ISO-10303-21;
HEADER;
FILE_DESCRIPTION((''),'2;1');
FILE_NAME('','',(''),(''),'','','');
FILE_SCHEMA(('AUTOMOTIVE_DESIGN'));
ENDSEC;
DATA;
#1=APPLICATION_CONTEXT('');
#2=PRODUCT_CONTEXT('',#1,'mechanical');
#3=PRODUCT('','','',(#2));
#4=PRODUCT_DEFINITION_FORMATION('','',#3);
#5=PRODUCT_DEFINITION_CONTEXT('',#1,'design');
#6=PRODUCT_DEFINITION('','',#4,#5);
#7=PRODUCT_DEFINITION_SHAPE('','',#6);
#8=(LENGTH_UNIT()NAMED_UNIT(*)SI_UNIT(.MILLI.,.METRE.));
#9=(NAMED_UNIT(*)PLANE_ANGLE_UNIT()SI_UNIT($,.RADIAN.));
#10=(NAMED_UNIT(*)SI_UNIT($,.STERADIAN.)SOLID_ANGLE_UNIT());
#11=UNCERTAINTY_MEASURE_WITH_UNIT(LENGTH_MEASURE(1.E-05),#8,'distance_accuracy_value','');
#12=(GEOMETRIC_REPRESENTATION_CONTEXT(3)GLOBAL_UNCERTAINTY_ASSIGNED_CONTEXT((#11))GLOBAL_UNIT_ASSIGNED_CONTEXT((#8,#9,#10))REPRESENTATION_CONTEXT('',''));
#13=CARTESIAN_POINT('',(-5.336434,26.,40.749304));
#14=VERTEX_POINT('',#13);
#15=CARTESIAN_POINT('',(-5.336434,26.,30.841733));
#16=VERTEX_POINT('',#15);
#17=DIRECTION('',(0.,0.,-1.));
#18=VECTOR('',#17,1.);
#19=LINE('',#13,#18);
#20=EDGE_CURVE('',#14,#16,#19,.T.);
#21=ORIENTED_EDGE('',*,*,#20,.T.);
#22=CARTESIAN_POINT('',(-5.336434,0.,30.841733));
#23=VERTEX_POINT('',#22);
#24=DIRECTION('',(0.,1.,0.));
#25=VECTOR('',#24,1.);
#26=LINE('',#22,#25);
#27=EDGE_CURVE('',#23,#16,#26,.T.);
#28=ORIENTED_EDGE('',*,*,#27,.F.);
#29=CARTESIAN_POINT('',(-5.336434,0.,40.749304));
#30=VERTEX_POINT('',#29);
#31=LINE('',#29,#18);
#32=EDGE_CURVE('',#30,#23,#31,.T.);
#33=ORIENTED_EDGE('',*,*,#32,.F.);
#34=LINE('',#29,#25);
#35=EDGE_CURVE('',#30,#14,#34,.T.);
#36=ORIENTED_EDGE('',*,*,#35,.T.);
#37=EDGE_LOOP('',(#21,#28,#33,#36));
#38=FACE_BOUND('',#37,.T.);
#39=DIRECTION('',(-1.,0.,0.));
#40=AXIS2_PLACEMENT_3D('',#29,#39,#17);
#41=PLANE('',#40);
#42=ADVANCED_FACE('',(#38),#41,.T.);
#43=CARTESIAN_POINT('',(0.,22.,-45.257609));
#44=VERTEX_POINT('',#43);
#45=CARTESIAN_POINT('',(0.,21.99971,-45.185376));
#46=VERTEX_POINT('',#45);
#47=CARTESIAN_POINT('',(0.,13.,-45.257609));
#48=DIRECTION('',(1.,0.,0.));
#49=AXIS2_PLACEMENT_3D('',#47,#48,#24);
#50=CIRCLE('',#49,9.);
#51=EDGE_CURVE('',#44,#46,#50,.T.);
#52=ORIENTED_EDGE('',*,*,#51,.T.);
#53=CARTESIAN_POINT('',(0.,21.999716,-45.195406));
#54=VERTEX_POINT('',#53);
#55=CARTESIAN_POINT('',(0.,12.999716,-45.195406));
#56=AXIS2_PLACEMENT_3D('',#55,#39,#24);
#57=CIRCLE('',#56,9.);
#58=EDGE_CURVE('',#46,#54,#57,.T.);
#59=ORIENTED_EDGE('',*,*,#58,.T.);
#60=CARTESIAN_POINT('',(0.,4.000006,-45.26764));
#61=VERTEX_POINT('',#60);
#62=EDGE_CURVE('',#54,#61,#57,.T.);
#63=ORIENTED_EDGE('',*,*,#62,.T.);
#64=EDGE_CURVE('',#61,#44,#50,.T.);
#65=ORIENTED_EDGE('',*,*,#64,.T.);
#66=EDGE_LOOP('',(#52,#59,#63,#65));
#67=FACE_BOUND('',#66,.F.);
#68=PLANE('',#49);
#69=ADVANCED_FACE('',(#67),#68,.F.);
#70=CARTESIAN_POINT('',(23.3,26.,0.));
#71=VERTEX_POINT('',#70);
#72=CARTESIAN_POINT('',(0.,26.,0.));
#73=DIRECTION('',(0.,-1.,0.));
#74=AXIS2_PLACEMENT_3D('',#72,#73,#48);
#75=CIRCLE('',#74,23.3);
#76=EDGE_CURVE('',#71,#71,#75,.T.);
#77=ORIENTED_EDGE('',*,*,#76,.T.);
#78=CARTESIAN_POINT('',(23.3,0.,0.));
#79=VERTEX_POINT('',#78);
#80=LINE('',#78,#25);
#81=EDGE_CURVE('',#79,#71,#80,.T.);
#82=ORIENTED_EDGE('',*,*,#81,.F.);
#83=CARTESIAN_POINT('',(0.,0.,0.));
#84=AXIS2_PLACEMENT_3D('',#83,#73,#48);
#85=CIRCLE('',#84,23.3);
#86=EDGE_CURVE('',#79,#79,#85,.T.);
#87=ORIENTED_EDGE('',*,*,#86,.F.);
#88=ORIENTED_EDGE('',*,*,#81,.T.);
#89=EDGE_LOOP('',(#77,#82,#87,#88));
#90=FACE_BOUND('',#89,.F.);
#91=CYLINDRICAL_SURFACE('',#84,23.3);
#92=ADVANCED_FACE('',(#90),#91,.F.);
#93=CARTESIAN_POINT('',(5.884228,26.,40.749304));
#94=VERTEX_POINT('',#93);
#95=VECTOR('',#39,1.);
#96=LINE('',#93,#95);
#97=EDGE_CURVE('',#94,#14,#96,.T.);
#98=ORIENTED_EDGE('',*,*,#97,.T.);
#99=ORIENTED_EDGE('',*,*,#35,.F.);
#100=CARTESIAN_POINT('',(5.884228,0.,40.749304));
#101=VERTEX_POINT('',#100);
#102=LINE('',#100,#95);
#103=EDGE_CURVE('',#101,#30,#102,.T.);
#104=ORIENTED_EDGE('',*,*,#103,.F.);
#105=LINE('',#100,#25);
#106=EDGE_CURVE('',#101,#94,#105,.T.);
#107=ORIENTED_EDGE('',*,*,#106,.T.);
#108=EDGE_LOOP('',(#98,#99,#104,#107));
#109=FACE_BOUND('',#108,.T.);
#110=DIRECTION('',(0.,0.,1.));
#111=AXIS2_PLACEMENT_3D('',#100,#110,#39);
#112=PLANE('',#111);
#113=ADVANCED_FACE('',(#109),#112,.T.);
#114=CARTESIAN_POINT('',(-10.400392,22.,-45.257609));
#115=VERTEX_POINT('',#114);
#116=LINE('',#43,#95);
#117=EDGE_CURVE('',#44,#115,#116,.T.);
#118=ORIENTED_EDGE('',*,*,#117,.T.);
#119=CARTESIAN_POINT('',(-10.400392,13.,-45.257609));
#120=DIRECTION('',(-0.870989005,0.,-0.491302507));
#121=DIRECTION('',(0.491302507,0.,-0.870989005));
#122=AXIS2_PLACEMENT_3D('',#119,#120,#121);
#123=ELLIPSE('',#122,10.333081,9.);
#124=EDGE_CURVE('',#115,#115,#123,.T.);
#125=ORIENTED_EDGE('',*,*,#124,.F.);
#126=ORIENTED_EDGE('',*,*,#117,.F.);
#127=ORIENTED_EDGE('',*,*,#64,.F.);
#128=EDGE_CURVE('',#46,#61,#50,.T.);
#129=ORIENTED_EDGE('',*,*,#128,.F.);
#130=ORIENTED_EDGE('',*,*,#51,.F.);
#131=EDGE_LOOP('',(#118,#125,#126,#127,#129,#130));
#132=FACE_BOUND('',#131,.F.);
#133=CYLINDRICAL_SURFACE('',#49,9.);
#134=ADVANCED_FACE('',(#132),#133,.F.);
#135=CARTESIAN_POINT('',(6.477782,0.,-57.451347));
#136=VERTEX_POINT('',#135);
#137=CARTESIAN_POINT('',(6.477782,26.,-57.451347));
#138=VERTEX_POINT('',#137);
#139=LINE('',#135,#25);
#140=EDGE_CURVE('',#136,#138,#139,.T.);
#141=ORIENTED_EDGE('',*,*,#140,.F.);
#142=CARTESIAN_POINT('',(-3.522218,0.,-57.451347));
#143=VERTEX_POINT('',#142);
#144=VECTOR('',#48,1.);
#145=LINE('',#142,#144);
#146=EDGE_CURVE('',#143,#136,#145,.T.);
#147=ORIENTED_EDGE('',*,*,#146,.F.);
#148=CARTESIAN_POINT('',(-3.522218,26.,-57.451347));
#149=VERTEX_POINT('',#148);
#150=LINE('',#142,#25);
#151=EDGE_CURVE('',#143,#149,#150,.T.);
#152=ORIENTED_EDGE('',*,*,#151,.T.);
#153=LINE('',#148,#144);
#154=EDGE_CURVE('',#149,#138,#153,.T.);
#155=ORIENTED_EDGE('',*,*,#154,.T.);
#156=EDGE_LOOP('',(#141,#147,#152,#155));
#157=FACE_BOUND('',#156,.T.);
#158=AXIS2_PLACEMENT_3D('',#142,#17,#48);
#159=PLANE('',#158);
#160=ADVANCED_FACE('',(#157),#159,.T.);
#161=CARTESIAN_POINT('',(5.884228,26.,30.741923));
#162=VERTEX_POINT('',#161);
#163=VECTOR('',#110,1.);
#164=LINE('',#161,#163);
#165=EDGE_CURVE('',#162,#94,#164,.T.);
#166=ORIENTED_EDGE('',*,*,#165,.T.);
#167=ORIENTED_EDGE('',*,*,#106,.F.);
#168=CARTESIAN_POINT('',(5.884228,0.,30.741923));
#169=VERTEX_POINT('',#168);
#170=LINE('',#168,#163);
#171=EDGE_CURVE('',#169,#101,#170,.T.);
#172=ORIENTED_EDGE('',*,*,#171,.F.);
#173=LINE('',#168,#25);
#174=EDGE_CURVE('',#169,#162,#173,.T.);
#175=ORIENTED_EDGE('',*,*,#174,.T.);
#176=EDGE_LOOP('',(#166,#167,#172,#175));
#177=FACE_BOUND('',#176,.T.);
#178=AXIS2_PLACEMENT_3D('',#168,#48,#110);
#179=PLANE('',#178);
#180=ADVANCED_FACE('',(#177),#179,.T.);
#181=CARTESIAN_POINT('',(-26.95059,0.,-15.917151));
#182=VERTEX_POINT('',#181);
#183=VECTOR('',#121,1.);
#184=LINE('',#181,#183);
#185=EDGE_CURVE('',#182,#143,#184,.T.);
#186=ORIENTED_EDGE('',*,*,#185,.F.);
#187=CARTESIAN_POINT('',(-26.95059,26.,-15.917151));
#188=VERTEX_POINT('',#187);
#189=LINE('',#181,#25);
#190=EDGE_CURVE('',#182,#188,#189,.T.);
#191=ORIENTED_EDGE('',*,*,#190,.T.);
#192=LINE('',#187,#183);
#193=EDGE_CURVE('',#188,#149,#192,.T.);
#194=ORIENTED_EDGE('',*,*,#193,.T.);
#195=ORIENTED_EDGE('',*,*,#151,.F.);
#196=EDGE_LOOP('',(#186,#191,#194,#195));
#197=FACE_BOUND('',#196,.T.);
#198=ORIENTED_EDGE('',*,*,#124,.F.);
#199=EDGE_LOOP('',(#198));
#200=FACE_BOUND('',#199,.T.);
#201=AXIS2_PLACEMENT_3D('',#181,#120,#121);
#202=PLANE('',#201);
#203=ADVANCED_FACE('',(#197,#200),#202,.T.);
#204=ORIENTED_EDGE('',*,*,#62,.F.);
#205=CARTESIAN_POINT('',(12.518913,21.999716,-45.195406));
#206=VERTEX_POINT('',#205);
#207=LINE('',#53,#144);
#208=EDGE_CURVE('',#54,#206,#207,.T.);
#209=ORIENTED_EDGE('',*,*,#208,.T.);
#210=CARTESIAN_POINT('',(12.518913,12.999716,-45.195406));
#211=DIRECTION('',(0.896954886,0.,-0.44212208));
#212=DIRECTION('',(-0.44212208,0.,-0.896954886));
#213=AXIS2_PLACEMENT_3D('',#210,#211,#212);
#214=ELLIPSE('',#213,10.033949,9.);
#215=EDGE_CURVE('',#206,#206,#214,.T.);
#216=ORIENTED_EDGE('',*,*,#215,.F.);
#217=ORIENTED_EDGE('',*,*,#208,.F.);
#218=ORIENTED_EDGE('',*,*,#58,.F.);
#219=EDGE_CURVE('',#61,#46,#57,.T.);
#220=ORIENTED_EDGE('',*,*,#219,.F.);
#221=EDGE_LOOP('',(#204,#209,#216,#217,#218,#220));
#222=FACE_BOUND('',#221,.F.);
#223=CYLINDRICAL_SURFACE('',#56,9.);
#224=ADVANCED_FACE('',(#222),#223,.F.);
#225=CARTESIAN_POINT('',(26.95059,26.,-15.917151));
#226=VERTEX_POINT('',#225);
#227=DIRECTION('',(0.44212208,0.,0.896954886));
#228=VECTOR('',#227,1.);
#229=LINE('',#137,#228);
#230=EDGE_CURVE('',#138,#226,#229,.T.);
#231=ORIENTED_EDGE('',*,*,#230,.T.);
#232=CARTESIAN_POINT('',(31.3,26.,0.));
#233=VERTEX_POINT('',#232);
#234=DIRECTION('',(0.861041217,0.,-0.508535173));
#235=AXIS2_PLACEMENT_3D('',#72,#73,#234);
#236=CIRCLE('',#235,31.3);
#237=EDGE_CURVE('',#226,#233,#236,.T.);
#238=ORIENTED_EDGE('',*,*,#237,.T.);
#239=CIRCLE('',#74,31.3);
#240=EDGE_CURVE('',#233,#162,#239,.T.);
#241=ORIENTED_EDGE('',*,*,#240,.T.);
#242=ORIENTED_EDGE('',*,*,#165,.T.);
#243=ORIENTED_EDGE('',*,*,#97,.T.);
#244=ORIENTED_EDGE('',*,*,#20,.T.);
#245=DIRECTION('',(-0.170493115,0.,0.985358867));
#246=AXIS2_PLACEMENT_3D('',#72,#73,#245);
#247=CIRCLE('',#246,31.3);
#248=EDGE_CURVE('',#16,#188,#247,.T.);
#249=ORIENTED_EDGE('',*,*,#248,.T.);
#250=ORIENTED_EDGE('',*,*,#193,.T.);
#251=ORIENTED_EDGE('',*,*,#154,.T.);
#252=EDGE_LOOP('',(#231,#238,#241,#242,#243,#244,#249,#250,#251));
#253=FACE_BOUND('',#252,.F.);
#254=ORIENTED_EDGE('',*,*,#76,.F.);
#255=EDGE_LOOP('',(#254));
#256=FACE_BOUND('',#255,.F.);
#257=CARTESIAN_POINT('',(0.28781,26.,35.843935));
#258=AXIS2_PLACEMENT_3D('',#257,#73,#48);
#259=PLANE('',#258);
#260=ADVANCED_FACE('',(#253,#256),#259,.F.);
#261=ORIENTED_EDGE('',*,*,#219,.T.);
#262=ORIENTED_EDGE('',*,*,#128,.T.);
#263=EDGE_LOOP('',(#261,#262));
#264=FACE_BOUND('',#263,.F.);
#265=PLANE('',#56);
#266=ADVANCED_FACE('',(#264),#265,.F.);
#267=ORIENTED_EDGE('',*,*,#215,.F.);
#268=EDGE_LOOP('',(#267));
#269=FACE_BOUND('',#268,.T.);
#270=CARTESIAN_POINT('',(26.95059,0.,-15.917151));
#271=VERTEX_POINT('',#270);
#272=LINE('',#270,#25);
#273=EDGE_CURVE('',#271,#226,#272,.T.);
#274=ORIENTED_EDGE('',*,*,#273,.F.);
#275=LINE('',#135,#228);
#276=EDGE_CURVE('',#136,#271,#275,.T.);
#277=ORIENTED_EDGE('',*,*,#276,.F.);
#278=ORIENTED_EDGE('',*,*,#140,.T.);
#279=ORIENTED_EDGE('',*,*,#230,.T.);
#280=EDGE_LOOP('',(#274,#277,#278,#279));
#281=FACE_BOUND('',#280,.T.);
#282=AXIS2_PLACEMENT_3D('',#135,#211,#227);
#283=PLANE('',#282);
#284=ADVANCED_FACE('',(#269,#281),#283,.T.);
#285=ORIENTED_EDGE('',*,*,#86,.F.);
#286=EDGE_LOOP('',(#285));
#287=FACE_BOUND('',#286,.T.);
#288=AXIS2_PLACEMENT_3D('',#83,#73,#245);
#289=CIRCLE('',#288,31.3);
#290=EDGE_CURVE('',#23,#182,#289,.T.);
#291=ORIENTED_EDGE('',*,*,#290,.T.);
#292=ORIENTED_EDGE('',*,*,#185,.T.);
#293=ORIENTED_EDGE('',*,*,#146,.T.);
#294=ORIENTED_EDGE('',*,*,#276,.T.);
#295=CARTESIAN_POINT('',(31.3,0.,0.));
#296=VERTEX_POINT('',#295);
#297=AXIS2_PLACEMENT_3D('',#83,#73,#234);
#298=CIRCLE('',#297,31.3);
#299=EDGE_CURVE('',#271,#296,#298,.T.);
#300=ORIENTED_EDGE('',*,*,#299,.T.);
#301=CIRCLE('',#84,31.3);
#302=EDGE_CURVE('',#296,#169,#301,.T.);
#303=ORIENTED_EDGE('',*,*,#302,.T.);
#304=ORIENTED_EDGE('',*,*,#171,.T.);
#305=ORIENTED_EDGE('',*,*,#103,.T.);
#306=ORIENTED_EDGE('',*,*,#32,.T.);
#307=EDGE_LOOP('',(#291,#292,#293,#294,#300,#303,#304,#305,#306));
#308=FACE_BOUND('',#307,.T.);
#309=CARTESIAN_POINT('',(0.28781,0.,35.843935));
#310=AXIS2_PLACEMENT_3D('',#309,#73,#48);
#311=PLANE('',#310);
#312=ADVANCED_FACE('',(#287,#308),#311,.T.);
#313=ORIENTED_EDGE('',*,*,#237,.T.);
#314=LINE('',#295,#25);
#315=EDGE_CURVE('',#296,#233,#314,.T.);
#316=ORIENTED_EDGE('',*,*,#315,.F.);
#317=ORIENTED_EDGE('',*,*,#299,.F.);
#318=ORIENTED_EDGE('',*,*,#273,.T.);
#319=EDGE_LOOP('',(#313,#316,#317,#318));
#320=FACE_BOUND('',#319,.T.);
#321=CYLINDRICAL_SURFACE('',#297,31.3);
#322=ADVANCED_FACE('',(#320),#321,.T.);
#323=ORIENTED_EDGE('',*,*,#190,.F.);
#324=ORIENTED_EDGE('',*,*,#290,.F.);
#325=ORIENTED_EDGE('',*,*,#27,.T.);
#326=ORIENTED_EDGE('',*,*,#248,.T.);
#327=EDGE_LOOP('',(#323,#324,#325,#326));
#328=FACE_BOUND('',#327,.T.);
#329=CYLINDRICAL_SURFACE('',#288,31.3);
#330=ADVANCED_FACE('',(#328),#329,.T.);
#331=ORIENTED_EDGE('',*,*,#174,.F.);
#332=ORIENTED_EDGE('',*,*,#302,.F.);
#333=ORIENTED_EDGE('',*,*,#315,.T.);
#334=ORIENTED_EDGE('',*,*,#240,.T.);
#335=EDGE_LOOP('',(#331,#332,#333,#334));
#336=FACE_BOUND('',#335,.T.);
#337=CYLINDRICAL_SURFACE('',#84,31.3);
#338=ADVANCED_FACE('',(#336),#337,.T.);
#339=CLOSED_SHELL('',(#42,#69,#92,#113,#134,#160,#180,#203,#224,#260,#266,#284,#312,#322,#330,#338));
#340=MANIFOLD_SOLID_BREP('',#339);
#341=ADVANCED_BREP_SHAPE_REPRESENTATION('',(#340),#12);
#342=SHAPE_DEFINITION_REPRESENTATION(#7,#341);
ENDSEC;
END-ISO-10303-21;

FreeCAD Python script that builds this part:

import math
import FreeCAD as App
import Part
import Sketcher
from FreeCAD import Vector
Q = App.Units.Quantity

doc = App.newDocument("Part")
body = doc.addObject("PartDesign::Body", "Body")

# Sketch on XZ plane
sketch1 = body.newObject("Sketcher::SketchObject", "Sketch")
sketch1.AttachmentSupport = (doc.getObject("XZ_Plane"), [""])
sketch1.MapMode = "FlatFace"
sketch1.addGeometry([
    Part.LineSegment(Vector(6, 31, 0), Vector(6, 41, 0)),  # 0
    Part.LineSegment(Vector(6, 41, 0), Vector(-5, 41, 0)),  # 1
    Part.LineSegment(Vector(-5, 41, 0), Vector(-5, 31, 0)),  # 2
    Part.ArcOfCircle(Part.Circle(Vector(0, 0, 0), Vector(0, 0, 1), 31), math.radians(100), math.radians(211)),  # 3
    Part.LineSegment(Vector(-27, -16, 0), Vector(-4, -57, 0)),  # 4
    Part.LineSegment(Vector(-4, -57, 0), Vector(6, -57, 0)),  # 5
    Part.LineSegment(Vector(6, -57, 0), Vector(27, -16, 0)),  # 6
    Part.ArcOfCircle(Part.Circle(Vector(0, 0, 0), Vector(0, 0, 1), 31), math.radians(-31), math.radians(0)),  # 7
    Part.ArcOfCircle(Part.Circle(Vector(0, 0, 0), Vector(0, 0, 1), 31), math.radians(0), math.radians(79)),  # 8
    Part.Circle(Vector(0, 0, 0), Vector(0, 0, 1), 23),  # 9
], False)
sketch1.addConstraint([
    Sketcher.Constraint("Coincident", 0, 2, 1, 1),
    Sketcher.Constraint("Coincident", 1, 2, 2, 1),
    Sketcher.Constraint("Coincident", 2, 2, 3, 1),
    Sketcher.Constraint("Coincident", 3, 2, 4, 1),
    Sketcher.Constraint("Coincident", 4, 2, 5, 1),
    Sketcher.Constraint("Coincident", 5, 2, 6, 1),
    Sketcher.Constraint("Coincident", 6, 2, 7, 1),
    Sketcher.Constraint("Tangent", 7, 2, 8, 1),
    Sketcher.Constraint("Coincident", 8, 2, 0, 1),
    Sketcher.Constraint("Vertical", 0),
    Sketcher.Constraint("Horizontal", 1),
    Sketcher.Constraint("Vertical", 2),
    Sketcher.Constraint("Horizontal", 5),
    Sketcher.Constraint("Coincident", 3, 3, -1, 1),
    Sketcher.Constraint("Coincident", 7, 3, -1, 1),
    Sketcher.Constraint("Coincident", 9, 3, -1, 1),
    Sketcher.Constraint("Equal", 3, 7),
    Sketcher.Constraint("Equal", 7, 8),
    Sketcher.Constraint("PointOnObject", 7, 2, -1),
    Sketcher.Constraint("Horizontal", 3, 2, 6, 2),
    Sketcher.Constraint("Diameter", 9, Q("46.6 mm")),
    Sketcher.Constraint("Radius", 3, Q("31.3 mm")),
    Sketcher.Constraint("DistanceX", 5, 1, 5, 2, Q("10 mm")),
    Sketcher.Constraint("DistanceY", 0, 1, 0, 2, Q("10.007381 mm")),
    Sketcher.Constraint("DistanceY", 2, 2, 2, 1, Q("9.907571 mm")),
    Sketcher.Constraint("Distance", 6, Q("46.30578 mm")),
    Sketcher.Constraint("DistanceX", 1, 2, 1, 1, Q("11.220663 mm")),
    Sketcher.Constraint("DistanceX", 3, 2, -1, 1, Q("26.95059 mm")),
    Sketcher.Constraint("Distance", 4, Q("47.686246 mm")),
])
pad1 = body.newObject("PartDesign::Pad", "Pad")
pad1.Profile = sketch1
pad1.Length = 26
pad1.Reversed = True

# Sketch on YZ plane
sketch2 = body.newObject("Sketcher::SketchObject", "Sketch001")
sketch2.AttachmentSupport = (doc.getObject("YZ_Plane"), [""])
sketch2.MapMode = "FlatFace"
sketch2.addGeometry(Part.Circle(Vector(13, -45, 0), Vector(0, 0, 1), 9), False)
sketch2.addConstraint([
    Sketcher.Constraint("Diameter", 0, Q("18 mm")),
    Sketcher.Constraint("DistanceX", -1, 1, 0, 3, Q("13 mm")),
    Sketcher.Constraint("DistanceY", 0, 3, -1, 1, Q("45.257609 mm")),
])
pocket1 = body.newObject("PartDesign::Pocket", "Pocket")
pocket1.Profile = sketch2
pocket1.Type = "ThroughAll"

# Sketch on YZ plane
sketch3 = body.newObject("Sketcher::SketchObject", "Sketch002")
sketch3.AttachmentSupport = (doc.getObject("YZ_Plane"), [""])
sketch3.MapMode = "FlatFace"
sketch3.addGeometry(Part.Circle(Vector(13, -45, 0), Vector(0, 0, 1), 9), False)
sketch3.addConstraint([
    Sketcher.Constraint("Diameter", 0, Q("18 mm")),
    Sketcher.Constraint("DistanceX", -1, 1, 0, 3, Q("12.999716 mm")),
    Sketcher.Constraint("DistanceY", 0, 3, -1, 1, Q("45.195406 mm")),
])
pocket2 = body.newObject("PartDesign::Pocket", "Pocket001")
pocket2.Profile = sketch3
pocket2.Type = "ThroughAll"
pocket2.Reversed = True

doc.recompute()
